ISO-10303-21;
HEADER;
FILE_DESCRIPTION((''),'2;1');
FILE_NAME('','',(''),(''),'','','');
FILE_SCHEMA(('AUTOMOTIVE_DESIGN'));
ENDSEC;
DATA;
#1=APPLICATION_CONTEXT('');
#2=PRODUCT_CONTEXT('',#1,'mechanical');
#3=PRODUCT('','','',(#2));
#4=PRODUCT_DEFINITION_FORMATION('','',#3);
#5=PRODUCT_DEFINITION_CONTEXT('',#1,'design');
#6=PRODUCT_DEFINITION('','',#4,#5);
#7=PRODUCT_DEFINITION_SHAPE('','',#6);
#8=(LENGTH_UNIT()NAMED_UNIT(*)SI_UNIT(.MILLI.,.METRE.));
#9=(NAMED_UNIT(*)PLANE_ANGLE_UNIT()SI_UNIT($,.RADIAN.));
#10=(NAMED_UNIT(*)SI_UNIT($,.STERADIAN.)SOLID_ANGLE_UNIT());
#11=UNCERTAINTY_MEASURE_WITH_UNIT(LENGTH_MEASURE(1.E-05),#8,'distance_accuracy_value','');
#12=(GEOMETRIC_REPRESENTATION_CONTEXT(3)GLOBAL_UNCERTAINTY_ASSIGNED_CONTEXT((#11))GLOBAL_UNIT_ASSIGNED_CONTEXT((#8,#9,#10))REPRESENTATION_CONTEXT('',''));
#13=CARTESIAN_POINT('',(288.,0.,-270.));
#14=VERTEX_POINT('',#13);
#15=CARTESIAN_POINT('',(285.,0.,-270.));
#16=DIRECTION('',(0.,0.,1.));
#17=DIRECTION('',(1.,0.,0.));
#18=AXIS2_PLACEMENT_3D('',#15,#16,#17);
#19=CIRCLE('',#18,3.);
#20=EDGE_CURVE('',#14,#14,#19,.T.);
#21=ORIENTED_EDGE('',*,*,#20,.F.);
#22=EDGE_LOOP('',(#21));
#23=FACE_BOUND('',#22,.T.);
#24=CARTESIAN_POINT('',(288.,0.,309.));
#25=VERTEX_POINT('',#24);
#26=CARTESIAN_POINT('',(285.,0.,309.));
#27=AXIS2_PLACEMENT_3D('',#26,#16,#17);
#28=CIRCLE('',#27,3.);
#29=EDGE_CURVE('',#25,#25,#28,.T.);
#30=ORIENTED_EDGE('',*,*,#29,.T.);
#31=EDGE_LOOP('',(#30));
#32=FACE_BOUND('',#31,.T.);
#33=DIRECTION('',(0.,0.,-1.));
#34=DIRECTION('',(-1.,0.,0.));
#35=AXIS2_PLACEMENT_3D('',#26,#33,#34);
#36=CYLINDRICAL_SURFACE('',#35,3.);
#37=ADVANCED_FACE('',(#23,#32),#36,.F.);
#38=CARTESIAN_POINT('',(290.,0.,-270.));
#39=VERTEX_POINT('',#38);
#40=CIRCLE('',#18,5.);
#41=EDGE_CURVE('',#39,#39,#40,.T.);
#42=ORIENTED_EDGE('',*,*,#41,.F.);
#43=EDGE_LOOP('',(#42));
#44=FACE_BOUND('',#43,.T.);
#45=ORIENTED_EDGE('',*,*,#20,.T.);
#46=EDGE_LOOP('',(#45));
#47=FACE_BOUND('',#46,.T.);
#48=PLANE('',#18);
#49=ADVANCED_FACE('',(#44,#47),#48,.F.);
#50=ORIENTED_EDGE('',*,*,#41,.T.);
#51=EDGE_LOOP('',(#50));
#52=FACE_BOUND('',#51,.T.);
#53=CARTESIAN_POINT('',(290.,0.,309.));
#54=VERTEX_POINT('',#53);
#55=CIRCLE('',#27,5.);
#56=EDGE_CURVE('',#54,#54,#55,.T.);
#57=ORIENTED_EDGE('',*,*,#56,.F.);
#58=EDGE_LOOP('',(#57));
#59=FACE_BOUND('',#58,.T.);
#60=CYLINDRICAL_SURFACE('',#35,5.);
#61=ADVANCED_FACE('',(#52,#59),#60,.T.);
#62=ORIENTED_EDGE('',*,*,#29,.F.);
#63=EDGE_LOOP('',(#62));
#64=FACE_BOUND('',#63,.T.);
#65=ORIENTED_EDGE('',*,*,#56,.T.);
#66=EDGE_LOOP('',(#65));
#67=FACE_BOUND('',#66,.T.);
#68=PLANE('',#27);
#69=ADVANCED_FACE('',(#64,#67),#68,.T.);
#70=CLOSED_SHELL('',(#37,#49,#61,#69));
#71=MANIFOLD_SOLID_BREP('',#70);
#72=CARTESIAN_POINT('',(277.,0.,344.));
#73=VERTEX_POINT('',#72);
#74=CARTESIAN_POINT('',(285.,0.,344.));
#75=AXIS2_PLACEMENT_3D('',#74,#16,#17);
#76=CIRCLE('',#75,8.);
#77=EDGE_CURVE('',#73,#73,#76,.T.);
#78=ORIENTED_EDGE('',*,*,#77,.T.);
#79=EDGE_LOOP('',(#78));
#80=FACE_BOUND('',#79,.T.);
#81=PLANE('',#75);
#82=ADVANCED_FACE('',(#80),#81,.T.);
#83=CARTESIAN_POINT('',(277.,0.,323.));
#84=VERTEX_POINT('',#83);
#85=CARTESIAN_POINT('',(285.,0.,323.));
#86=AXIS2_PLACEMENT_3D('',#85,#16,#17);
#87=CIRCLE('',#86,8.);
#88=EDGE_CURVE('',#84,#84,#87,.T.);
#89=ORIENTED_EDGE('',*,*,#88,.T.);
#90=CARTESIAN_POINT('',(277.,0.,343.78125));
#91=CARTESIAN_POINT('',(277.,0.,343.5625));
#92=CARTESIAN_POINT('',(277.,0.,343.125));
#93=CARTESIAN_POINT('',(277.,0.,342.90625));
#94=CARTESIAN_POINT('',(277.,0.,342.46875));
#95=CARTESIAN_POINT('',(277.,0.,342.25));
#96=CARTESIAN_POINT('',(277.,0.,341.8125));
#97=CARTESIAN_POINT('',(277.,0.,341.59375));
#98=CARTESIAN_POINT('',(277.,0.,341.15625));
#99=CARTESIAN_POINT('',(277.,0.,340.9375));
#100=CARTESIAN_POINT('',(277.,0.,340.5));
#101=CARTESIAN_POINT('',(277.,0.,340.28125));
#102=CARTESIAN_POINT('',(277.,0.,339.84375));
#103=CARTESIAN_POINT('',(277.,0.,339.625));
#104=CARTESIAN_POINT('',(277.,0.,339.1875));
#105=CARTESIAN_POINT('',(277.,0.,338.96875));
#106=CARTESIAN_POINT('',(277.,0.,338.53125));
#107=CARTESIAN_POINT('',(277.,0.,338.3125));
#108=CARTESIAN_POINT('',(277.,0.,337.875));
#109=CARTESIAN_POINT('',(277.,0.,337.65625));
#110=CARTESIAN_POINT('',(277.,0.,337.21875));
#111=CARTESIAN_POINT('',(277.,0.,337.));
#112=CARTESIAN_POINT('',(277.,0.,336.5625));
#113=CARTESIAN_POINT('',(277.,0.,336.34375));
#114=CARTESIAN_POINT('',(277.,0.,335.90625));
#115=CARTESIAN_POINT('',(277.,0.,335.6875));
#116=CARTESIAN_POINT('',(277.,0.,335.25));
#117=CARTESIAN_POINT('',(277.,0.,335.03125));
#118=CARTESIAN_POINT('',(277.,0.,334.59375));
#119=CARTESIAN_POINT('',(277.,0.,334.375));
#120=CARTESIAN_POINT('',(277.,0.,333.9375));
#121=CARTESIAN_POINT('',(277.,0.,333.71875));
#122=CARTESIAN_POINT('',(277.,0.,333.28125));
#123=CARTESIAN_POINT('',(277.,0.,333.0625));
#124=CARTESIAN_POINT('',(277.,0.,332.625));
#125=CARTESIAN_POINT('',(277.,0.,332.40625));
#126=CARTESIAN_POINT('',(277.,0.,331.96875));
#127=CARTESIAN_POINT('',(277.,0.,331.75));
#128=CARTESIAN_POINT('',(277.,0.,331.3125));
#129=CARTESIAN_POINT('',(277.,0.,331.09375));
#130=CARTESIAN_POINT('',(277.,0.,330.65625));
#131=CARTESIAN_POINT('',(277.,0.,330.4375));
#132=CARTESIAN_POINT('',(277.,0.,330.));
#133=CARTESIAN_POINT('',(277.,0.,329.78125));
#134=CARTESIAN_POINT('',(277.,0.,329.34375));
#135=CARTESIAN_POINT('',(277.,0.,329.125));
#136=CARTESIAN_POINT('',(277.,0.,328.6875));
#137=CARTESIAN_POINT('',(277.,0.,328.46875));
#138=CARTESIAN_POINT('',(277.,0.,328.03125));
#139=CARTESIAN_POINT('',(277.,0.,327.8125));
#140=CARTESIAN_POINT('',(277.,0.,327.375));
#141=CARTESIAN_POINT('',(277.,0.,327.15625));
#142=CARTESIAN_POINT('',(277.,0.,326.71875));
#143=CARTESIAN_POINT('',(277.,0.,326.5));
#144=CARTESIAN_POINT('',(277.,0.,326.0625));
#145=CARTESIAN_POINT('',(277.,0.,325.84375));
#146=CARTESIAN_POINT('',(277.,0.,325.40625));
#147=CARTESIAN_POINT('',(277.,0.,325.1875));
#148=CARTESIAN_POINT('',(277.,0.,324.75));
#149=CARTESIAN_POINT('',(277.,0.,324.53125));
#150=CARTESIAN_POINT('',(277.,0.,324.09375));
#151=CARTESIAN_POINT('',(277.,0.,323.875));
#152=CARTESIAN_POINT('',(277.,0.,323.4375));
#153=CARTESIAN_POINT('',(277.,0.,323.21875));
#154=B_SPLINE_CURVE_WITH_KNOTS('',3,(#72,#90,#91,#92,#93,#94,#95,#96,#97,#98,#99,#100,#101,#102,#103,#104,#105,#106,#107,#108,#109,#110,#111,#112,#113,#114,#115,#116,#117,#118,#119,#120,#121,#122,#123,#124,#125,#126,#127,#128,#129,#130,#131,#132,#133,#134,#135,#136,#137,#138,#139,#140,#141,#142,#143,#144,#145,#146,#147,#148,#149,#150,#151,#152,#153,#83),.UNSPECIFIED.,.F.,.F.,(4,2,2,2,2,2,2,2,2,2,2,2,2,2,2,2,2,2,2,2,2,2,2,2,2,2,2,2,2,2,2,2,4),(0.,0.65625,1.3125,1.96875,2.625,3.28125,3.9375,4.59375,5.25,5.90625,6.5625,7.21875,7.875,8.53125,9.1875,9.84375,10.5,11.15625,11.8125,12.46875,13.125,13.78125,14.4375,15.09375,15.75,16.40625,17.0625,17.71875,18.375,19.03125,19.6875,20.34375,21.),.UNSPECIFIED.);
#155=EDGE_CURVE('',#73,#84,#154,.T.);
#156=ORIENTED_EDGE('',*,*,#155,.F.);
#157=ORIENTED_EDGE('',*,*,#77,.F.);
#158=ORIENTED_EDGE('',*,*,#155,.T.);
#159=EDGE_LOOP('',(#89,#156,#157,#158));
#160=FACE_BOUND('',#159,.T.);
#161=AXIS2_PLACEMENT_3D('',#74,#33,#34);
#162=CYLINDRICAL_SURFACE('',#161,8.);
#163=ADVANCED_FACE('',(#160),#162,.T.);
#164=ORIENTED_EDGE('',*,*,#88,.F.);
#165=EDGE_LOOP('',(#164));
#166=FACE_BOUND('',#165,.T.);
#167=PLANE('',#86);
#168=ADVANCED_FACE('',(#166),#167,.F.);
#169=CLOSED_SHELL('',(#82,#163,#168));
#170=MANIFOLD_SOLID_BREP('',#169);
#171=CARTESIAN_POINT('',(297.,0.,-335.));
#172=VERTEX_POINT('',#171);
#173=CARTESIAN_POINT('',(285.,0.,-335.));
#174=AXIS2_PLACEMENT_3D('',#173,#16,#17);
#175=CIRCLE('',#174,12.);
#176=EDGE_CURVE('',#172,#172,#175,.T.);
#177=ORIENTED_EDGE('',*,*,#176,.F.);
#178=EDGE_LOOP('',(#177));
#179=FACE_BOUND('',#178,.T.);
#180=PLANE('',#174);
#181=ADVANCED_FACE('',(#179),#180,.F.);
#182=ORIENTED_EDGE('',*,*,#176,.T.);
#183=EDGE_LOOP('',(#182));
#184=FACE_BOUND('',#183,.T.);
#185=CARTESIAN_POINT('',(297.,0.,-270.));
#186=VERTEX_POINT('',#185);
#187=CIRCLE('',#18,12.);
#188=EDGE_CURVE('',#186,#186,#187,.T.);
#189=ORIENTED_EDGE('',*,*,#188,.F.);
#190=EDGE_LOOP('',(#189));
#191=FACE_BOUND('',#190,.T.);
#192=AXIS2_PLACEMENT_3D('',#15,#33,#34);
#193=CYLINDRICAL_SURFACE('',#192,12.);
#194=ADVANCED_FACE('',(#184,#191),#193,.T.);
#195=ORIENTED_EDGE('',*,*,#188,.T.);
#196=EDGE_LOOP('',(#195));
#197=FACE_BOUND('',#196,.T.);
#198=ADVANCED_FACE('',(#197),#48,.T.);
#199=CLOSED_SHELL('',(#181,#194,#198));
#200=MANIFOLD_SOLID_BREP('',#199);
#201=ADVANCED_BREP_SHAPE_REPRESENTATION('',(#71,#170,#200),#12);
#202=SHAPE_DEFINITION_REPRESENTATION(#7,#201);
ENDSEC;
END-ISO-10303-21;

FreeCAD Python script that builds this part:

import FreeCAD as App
import Part
import Sketcher

V = App.Vector

doc = App.newDocument("Part")
params = doc.addObject("Spreadsheet::Sheet", "Params")
for row, (alias, value) in enumerate([
    ("sketch1_diameter", "24 mm"),
    ("pad1_length", "65 mm"),
    ("sketch2_diameter", "10 mm"),
    ("sketch2_diameter2", "6 mm"),
    ("pad2_length", "579 mm"),
    ("sketch3_diameter", "16 mm"),
    ("pad3_length", "21 mm"),
], start=1):
    params.set(f"A{row}", alias)
    params.set(f"B{row}", "=" + value)
    params.setAlias(f"B{row}", alias)

body = doc.addObject("PartDesign::Body", "Body")

sketch1 = doc.addObject("Sketcher::SketchObject", "Sketch")
body.addObject(sketch1)
sketch1.AttachmentSupport = (doc.XY_Plane, [""])
sketch1.MapMode = "FlatFace"
sketch1.AttachmentOffset = App.Placement(V(0, 0, -335), App.Rotation())
sketch1.addGeometry(Part.Circle(V(285, 0, 0), V(0, 0, 1), 12), False)
sketch1.addConstraint([
    Sketcher.Constraint("PointOnObject", 0, 3, -1),
    Sketcher.Constraint("Diameter", 0, 24.0),
    Sketcher.Constraint("DistanceX", -1, 1, 0, 3, 285.0),
])
sketch1.setExpression("Constraints[1]", "Params.sketch1_diameter")
pad1 = doc.addObject("PartDesign::Pad", "Pad")
body.addObject(pad1)
pad1.Profile = sketch1
pad1.setExpression("Length", "Params.pad1_length")
body2 = doc.addObject("PartDesign::Body", "Body001")

sketch2 = doc.addObject("Sketcher::SketchObject", "Sketch001")
body2.addObject(sketch2)
sketch2.AttachmentSupport = (doc.getObject("XY_Plane001"), [""])
sketch2.MapMode = "FlatFace"
sketch2.AttachmentOffset = App.Placement(V(0, 0, -270), App.Rotation())
sketch2.addGeometry([
    Part.Circle(V(285, 0, 0), V(0, 0, 1), 5),
    Part.Circle(V(285, 0, 0), V(0, 0, 1), 3),
], False)
sketch2.addConstraint([
    Sketcher.Constraint("Coincident", 1, 3, 0, 3),
    Sketcher.Constraint("PointOnObject", 0, 3, -1),
    Sketcher.Constraint("Diameter", 0, 10.0),
    Sketcher.Constraint("Diameter", 1, 6.0),
    Sketcher.Constraint("DistanceX", -1, 1, 0, 3, 285.0),
])
sketch2.setExpression("Constraints[2]", "Params.sketch2_diameter")
sketch2.setExpression("Constraints[3]", "Params.sketch2_diameter2")
pad2 = doc.addObject("PartDesign::Pad", "Pad001")
body2.addObject(pad2)
pad2.Profile = sketch2
pad2.setExpression("Length", "Params.pad2_length")
body3 = doc.addObject("PartDesign::Body", "Body002")

sketch3 = doc.addObject("Sketcher::SketchObject", "Sketch002")
body3.addObject(sketch3)
sketch3.AttachmentSupport = (doc.getObject("XY_Plane002"), [""])
sketch3.MapMode = "FlatFace"
sketch3.AttachmentOffset = App.Placement(V(0, 0, 323), App.Rotation())
sketch3.addGeometry(Part.Circle(V(285, 0, 0), V(0, 0, 1), 8), False)
sketch3.addConstraint([
    Sketcher.Constraint("PointOnObject", 0, 3, -1),
    Sketcher.Constraint("Diameter", 0, 16.0),
    Sketcher.Constraint("DistanceX", -1, 1, 0, 3, 285.0),
])
sketch3.setExpression("Constraints[1]", "Params.sketch3_diameter")
pad3 = doc.addObject("PartDesign::Pad", "Pad002")
body3.addObject(pad3)
pad3.Profile = sketch3
pad3.setExpression("Length", "Params.pad3_length")

doc.recompute()
